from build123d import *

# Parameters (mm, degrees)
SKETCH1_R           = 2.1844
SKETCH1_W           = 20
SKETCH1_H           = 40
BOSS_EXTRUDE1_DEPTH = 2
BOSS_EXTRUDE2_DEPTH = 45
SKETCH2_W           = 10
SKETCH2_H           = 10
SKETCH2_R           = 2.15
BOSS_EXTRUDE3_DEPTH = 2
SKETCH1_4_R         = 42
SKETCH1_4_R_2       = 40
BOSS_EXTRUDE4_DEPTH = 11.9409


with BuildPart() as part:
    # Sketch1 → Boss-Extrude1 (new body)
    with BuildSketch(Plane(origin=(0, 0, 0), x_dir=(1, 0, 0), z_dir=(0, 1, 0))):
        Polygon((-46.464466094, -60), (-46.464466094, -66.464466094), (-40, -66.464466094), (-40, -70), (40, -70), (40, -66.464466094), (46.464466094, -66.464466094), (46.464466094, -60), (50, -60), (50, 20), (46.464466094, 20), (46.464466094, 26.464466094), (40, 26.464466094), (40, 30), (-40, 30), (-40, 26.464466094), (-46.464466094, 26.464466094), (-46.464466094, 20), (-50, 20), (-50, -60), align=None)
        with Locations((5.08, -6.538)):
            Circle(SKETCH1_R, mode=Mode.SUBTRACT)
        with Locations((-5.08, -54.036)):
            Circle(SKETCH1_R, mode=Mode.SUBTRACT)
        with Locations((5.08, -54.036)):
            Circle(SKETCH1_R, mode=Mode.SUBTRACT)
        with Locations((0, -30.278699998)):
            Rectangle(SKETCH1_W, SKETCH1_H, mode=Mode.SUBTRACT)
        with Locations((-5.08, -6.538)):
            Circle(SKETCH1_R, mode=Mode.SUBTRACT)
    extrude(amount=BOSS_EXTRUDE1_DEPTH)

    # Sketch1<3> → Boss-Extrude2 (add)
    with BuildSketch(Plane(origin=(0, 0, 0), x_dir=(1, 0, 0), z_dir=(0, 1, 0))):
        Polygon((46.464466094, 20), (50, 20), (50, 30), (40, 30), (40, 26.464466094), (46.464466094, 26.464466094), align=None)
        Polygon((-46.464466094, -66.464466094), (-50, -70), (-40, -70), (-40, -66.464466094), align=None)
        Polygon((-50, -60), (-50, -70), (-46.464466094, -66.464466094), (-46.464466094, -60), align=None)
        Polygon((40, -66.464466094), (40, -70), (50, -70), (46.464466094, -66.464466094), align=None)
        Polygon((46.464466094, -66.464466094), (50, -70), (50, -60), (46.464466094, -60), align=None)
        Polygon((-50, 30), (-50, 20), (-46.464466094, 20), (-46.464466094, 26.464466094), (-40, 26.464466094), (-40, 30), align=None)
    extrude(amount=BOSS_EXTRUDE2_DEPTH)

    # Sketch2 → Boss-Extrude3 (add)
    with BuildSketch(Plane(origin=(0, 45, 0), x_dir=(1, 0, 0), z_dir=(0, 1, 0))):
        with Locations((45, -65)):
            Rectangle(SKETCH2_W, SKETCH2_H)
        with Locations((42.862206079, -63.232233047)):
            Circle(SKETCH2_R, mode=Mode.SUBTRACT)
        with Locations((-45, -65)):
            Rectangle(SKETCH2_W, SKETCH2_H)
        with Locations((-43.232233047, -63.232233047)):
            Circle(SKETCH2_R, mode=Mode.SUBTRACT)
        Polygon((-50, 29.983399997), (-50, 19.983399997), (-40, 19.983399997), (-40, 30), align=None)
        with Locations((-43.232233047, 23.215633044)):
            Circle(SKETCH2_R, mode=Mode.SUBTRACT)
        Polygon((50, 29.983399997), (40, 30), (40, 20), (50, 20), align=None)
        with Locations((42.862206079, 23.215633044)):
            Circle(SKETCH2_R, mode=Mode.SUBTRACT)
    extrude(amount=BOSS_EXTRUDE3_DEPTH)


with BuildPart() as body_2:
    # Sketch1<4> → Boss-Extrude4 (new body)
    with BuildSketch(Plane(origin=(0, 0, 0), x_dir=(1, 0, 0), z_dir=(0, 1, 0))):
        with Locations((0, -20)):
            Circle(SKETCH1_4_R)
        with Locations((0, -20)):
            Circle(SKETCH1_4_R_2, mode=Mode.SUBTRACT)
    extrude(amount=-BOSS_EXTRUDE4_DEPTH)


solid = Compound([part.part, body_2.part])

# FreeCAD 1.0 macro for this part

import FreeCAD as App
import Part
import Sketcher

V = App.Vector

doc = App.newDocument("Part")
body = doc.addObject("PartDesign::Body", "Body")

sketch1 = body.newObject("Sketcher::SketchObject", "Sketch")
sketch1.AttachmentSupport = (doc.getObject("XZ_Plane"), [""])
sketch1.MapMode = "FlatFace"
sketch1.addGeometry([
    Part.LineSegment(V(-46.5, 60, 0), V(-46.5, 66.5, 0)),
    Part.LineSegment(V(-46.5, 66.5, 0), V(-40, 66.5, 0)),
    Part.LineSegment(V(-40, 66.5, 0), V(-40, 70, 0)),
    Part.LineSegment(V(-40, 70, 0), V(40, 70, 0)),
    Part.LineSegment(V(40, 70, 0), V(40, 66.5, 0)),
    Part.LineSegment(V(40, 66.5, 0), V(46.5, 66.5, 0)),
    Part.LineSegment(V(46.5, 66.5, 0), V(46.5, 60, 0)),
    Part.LineSegment(V(46.5, 60, 0), V(50, 60, 0)),
    Part.LineSegment(V(50, 60, 0), V(50, -20, 0)),
    Part.LineSegment(V(50, -20, 0), V(46.5, -20, 0)),
    Part.LineSegment(V(46.5, -20, 0), V(46.5, -26.5, 0)),
    Part.LineSegment(V(46.5, -26.5, 0), V(40, -26.5, 0)),
    Part.LineSegment(V(40, -26.5, 0), V(40, -30, 0)),
    Part.LineSegment(V(40, -30, 0), V(-40, -30, 0)),
    Part.LineSegment(V(-40, -30, 0), V(-40, -26.5, 0)),
    Part.LineSegment(V(-40, -26.5, 0), V(-46.5, -26.5, 0)),
    Part.LineSegment(V(-46.5, -26.5, 0), V(-46.5, -20, 0)),
    Part.LineSegment(V(-46.5, -20, 0), V(-50, -20, 0)),
    Part.LineSegment(V(-50, -20, 0), V(-50, 60, 0)),
    Part.LineSegment(V(-50, 60, 0), V(-46.5, 60, 0)),
    Part.Circle(V(-5.1, 54, 0), V(0, 0, 1), 2.2),
    Part.Circle(V(5.1, 54, 0), V(0, 0, 1), 2.2),
    Part.Circle(V(-5.1, 6.5, 0), V(0, 0, 1), 2.2),
    Part.LineSegment(V(10, 50.3, 0), V(-10, 50.3, 0)),
    Part.LineSegment(V(-10, 50.3, 0), V(-10, 10.3, 0)),
    Part.LineSegment(V(-10, 10.3, 0), V(10, 10.3, 0)),
    Part.LineSegment(V(10, 10.3, 0), V(10, 50.3, 0)),
    Part.Circle(V(5.1, 6.5, 0), V(0, 0, 1), 2.2),
], False)
sketch1.addConstraint([
    Sketcher.Constraint("Coincident", 0, 2, 1, 1),
    Sketcher.Constraint("Coincident", 1, 2, 2, 1),
    Sketcher.Constraint("Coincident", 2, 2, 3, 1),
    Sketcher.Constraint("Coincident", 3, 2, 4, 1),
    Sketcher.Constraint("Coincident", 4, 2, 5, 1),
    Sketcher.Constraint("Coincident", 5, 2, 6, 1),
    Sketcher.Constraint("Coincident", 6, 2, 7, 1),
    Sketcher.Constraint("Coincident", 7, 2, 8, 1),
    Sketcher.Constraint("Coincident", 8, 2, 9, 1),
    Sketcher.Constraint("Coincident", 9, 2, 10, 1),
    Sketcher.Constraint("Coincident", 10, 2, 11, 1),
    Sketcher.Constraint("Coincident", 11, 2, 12, 1),
    Sketcher.Constraint("Coincident", 12, 2, 13, 1),
    Sketcher.Constraint("Coincident", 13, 2, 14, 1),
    Sketcher.Constraint("Coincident", 14, 2, 15, 1),
    Sketcher.Constraint("Coincident", 15, 2, 16, 1),
    Sketcher.Constraint("Coincident", 16, 2, 17, 1),
    Sketcher.Constraint("Coincident", 17, 2, 18, 1),
    Sketcher.Constraint("Coincident", 18, 2, 19, 1),
    Sketcher.Constraint("Coincident", 19, 2, 0, 1),
    Sketcher.Constraint("Coincident", 23, 2, 24, 1),
    Sketcher.Constraint("Coincident", 24, 2, 25, 1),
    Sketcher.Constraint("Coincident", 25, 2, 26, 1),
    Sketcher.Constraint("Coincident", 26, 2, 23, 1),
    Sketcher.Constraint("Vertical", 0),
    Sketcher.Constraint("Horizontal", 1),
    Sketcher.Constraint("Vertical", 2),
    Sketcher.Constraint("Horizontal", 3),
    Sketcher.Constraint("Vertical", 4),
    Sketcher.Constraint("Horizontal", 5),
    Sketcher.Constraint("Vertical", 6),
    Sketcher.Constraint("Horizontal", 7),
    Sketcher.Constraint("Vertical", 8),
    Sketcher.Constraint("Horizontal", 9),
    Sketcher.Constraint("Vertical", 10),
    Sketcher.Constraint("Horizontal", 11),
    Sketcher.Constraint("Vertical", 12),
    Sketcher.Constraint("Horizontal", 13),
    Sketcher.Constraint("Vertical", 14),
    Sketcher.Constraint("Horizontal", 15),
    Sketcher.Constraint("Vertical", 16),
    Sketcher.Constraint("Horizontal", 17),
    Sketcher.Constraint("Vertical", 18),
    Sketcher.Constraint("Horizontal", 19),
    Sketcher.Constraint("Horizontal", 23),
    Sketcher.Constraint("Vertical", 24),
    Sketcher.Constraint("Horizontal", 25),
    Sketcher.Constraint("Vertical", 26),
    Sketcher.Constraint("Equal", 20, 21),
    Sketcher.Constraint("Equal", 21, 22),
    Sketcher.Constraint("Equal", 22, 27),
    Sketcher.Constraint("Symmetric", 20, 3, 21, 3, -2),
    Sketcher.Constraint("Symmetric", 22, 3, 27, 3, -2),
    Sketcher.Constraint("Symmetric", 1, 2, 4, 2, -2),
    Sketcher.Constraint("Symmetric", 11, 2, 14, 2, -2),
    Sketcher.Constraint("Symmetric", 9, 2, 16, 2, -2),
    Sketcher.Constraint("Symmetric", 7, 2, 18, 2, -2),
    Sketcher.Constraint("Vertical", 20, 3, 22, 3),
    Sketcher.Constraint("Vertical", 6, 2, 9, 2),
    Sketcher.Constraint("Vertical", 4, 2, 11, 2),
    Sketcher.Constraint("Vertical", 0, 2, 15, 2),
    Sketcher.Constraint("Equal", 15, 0),
    Sketcher.Constraint("Equal", 19, 2),
    Sketcher.Constraint("Equal", 13, 8),
    Sketcher.Constraint("Equal", 6, 10),
    Sketcher.Constraint("Equal", 4, 12),
    Sketcher.Constraint("DistanceX", 3, 1, 3, 2, 80.0),
    Sketcher.Constraint("DistanceX", 23, 2, 23, 1, 20.0),
    Sketcher.Constraint("DistanceY", 24, 2, 24, 1, 40.0),
    Sketcher.Constraint("DistanceY", -1, 1, 2, 2, 70.0),
    Sketcher.Constraint("DistanceY", -1, 1, 6, 2, 60.0),
    Sketcher.Constraint("DistanceX", 23, 2, -1, 1, 10.0),
    Sketcher.Constraint("Diameter", 20, 4.3688),
    Sketcher.Constraint("DistanceX", 20, 3, -1, 1, 5.08),
    Sketcher.Constraint("DistanceY", -1, 1, 20, 3, 54.036),
    Sketcher.Constraint("DistanceY", -1, 1, 22, 3, 6.538),
    Sketcher.Constraint("DistanceY", -1, 1, 23, 2, 50.2787),
    Sketcher.Constraint("DistanceX", 1, 1, 1, 2, 6.464466),
])
pad1 = body.newObject("PartDesign::Pad", "Pad")
pad1.Profile = sketch1
pad1.Length = 2
pad1.Reversed = True

sketch2 = body.newObject("Sketcher::SketchObject", "Sketch001")
sketch2.AttachmentSupport = (doc.getObject("XZ_Plane"), [""])
sketch2.MapMode = "FlatFace"
sketch2.addGeometry([
    Part.LineSegment(V(46.5, -20, 0), V(50, -20, 0)),
    Part.LineSegment(V(50, -20, 0), V(50, -30, 0)),
    Part.LineSegment(V(50, -30, 0), V(40, -30, 0)),
    Part.LineSegment(V(40, -30, 0), V(40, -26.5, 0)),
    Part.LineSegment(V(40, -26.5, 0), V(46.5, -26.5, 0)),
    Part.LineSegment(V(46.5, -26.5, 0), V(46.5, -20, 0)),
    Part.LineSegment(V(-50, 70, 0), V(-40, 70, 0)),
    Part.LineSegment(V(-40, 70, 0), V(-40, 66.5, 0)),
    Part.LineSegment(V(-40, 66.5, 0), V(-46.5, 66.5, 0)),
    Part.LineSegment(V(-46.5, 66.5, 0), V(-46.5, 60, 0)),
    Part.LineSegment(V(-46.5, 60, 0), V(-50, 60, 0)),
    Part.LineSegment(V(-50, 60, 0), V(-50, 70, 0)),
    Part.LineSegment(V(40, 66.5, 0), V(40, 70, 0)),
    Part.LineSegment(V(40, 70, 0), V(50, 70, 0)),
    Part.LineSegment(V(50, 70, 0), V(50, 60, 0)),
    Part.LineSegment(V(50, 60, 0), V(46.5, 60, 0)),
    Part.LineSegment(V(46.5, 60, 0), V(46.5, 66.5, 0)),
    Part.LineSegment(V(46.5, 66.5, 0), V(40, 66.5, 0)),
    Part.LineSegment(V(-50, -30, 0), V(-50, -20, 0)),
    Part.LineSegment(V(-50, -20, 0), V(-46.5, -20, 0)),
    Part.LineSegment(V(-46.5, -20, 0), V(-46.5, -26.5, 0)),
    Part.LineSegment(V(-46.5, -26.5, 0), V(-40, -26.5, 0)),
    Part.LineSegment(V(-40, -26.5, 0), V(-40, -30, 0)),
    Part.LineSegment(V(-40, -30, 0), V(-50, -30, 0)),
], False)
sketch2.addConstraint([
    Sketcher.Constraint("Coincident", 0, 2, 1, 1),
    Sketcher.Constraint("Coincident", 1, 2, 2, 1),
    Sketcher.Constraint("Coincident", 2, 2, 3, 1),
    Sketcher.Constraint("Coincident", 3, 2, 4, 1),
    Sketcher.Constraint("Coincident", 4, 2, 5, 1),
    Sketcher.Constraint("Coincident", 5, 2, 0, 1),
    Sketcher.Constraint("Coincident", 6, 2, 7, 1),
    Sketcher.Constraint("Coincident", 7, 2, 8, 1),
    Sketcher.Constraint("Coincident", 8, 2, 9, 1),
    Sketcher.Constraint("Coincident", 9, 2, 10, 1),
    Sketcher.Constraint("Coincident", 10, 2, 11, 1),
    Sketcher.Constraint("Coincident", 11, 2, 6, 1),
    Sketcher.Constraint("Coincident", 12, 2, 13, 1),
    Sketcher.Constraint("Coincident", 13, 2, 14, 1),
    Sketcher.Constraint("Coincident", 14, 2, 15, 1),
    Sketcher.Constraint("Coincident", 15, 2, 16, 1),
    Sketcher.Constraint("Coincident", 16, 2, 17, 1),
    Sketcher.Constraint("Coincident", 17, 2, 12, 1),
    Sketcher.Constraint("Coincident", 18, 2, 19, 1),
    Sketcher.Constraint("Coincident", 19, 2, 20, 1),
    Sketcher.Constraint("Coincident", 20, 2, 21, 1),
    Sketcher.Constraint("Coincident", 21, 2, 22, 1),
    Sketcher.Constraint("Coincident", 22, 2, 23, 1),
    Sketcher.Constraint("Coincident", 23, 2, 18, 1),
    Sketcher.Constraint("Horizontal", 0),
    Sketcher.Constraint("Vertical", 1),
    Sketcher.Constraint("Horizontal", 2),
    Sketcher.Constraint("Vertical", 3),
    Sketcher.Constraint("Horizontal", 4),
    Sketcher.Constraint("Vertical", 5),
    Sketcher.Constraint("Horizontal", 6),
    Sketcher.Constraint("Vertical", 7),
    Sketcher.Constraint("Horizontal", 8),
    Sketcher.Constraint("Vertical", 9),
    Sketcher.Constraint("Horizontal", 10),
    Sketcher.Constraint("Vertical", 11),
    Sketcher.Constraint("Vertical", 12),
    Sketcher.Constraint("Horizontal", 13),
    Sketcher.Constraint("Vertical", 14),
    Sketcher.Constraint("Horizontal", 15),
    Sketcher.Constraint("Vertical", 16),
    Sketcher.Constraint("Horizontal", 17),
    Sketcher.Constraint("Vertical", 18),
    Sketcher.Constraint("Horizontal", 19),
    Sketcher.Constraint("Vertical", 20),
    Sketcher.Constraint("Horizontal", 21),
    Sketcher.Constraint("Vertical", 22),
    Sketcher.Constraint("Horizontal", 23),
    Sketcher.Constraint("Symmetric", 6, 2, 12, 2, -2),
    Sketcher.Constraint("Symmetric", 10, 2, 14, 2, -2),
    Sketcher.Constraint("Symmetric", 8, 2, 16, 2, -2),
    Sketcher.Constraint("Symmetric", 0, 2, 18, 2, -2),
    Sketcher.Constraint("Symmetric", 4, 2, 20, 2, -2),
    Sketcher.Constraint("Symmetric", 2, 2, 22, 2, -2),
    Sketcher.Constraint("Vertical", 3, 2, 12, 2),
    Sketcher.Constraint("Vertical", 1, 2, 13, 2),
    Sketcher.Constraint("Vertical", 5, 2, 15, 2),
    Sketcher.Constraint("Equal", 23, 1),
    Sketcher.Constraint("Equal", 19, 3),
    Sketcher.Constraint("Equal", 3, 7),
    Sketcher.Constraint("Equal", 5, 9),
    Sketcher.Constraint("DistanceX", 2, 2, 2, 1, 10.0),
    Sketcher.Constraint("DistanceX", -1, 1, 0, 2, 50.0),
    Sketcher.Constraint("DistanceY", 0, 2, -1, 1, 20.0),
    Sketcher.Constraint("DistanceY", -1, 1, 6, 2, 70.0),
    Sketcher.Constraint("DistanceX", 0, 1, 0, 2, 3.535534),
])
pad2 = body.newObject("PartDesign::Pad", "Pad001")
pad2.Profile = sketch2
pad2.Length = 45
pad2.Reversed = True

sketch3 = body.newObject("Sketcher::SketchObject", "Sketch002")
sketch3.AttachmentSupport = (doc.getObject("XZ_Plane"), [""])
sketch3.MapMode = "FlatFace"
sketch3.AttachmentOffset = App.Placement(V(0, 0, -45), App.Rotation())
sketch3.addGeometry([
    Part.LineSegment(V(40, 60, 0), V(40, 70, 0)),
    Part.LineSegment(V(40, 70, 0), V(50, 70, 0)),
    Part.LineSegment(V(50, 70, 0), V(50, 60, 0)),
    Part.LineSegment(V(50, 60, 0), V(40, 60, 0)),
    Part.Circle(V(42.9, 63.2, 0), V(0, 0, 1), 2.1),
    Part.LineSegment(V(-50, 60, 0), V(-50, 70, 0)),
    Part.LineSegment(V(-50, 70, 0), V(-40, 70, 0)),
    Part.LineSegment(V(-40, 70, 0), V(-40, 60, 0)),
    Part.LineSegment(V(-40, 60, 0), V(-50, 60, 0)),
    Part.Circle(V(-43.2, 63.2, 0), V(0, 0, 1), 2.1),
    Part.LineSegment(V(-50, -30, 0), V(-50, -20, 0)),
    Part.LineSegment(V(-50, -20, 0), V(-40, -20, 0)),
    Part.LineSegment(V(-40, -20, 0), V(-40, -30, 0)),
    Part.LineSegment(V(-40, -30, 0), V(-50, -30, 0)),
    Part.Circle(V(-43.2, -23.2, 0), V(0, 0, 1), 2.1),
    Part.LineSegment(V(50, -30, 0), V(40, -30, 0)),
    Part.LineSegment(V(40, -30, 0), V(40, -20, 0)),
    Part.LineSegment(V(40, -20, 0), V(50, -20, 0)),
    Part.LineSegment(V(50, -20, 0), V(50, -30, 0)),
    Part.Circle(V(42.9, -23.2, 0), V(0, 0, 1), 2.1),
], False)
sketch3.addConstraint([
    Sketcher.Constraint("Coincident", 0, 2, 1, 1),
    Sketcher.Constraint("Coincident", 1, 2, 2, 1),
    Sketcher.Constraint("Coincident", 2, 2, 3, 1),
    Sketcher.Constraint("Coincident", 3, 2, 0, 1),
    Sketcher.Constraint("Coincident", 5, 2, 6, 1),
    Sketcher.Constraint("Coincident", 6, 2, 7, 1),
    Sketcher.Constraint("Coincident", 7, 2, 8, 1),
    Sketcher.Constraint("Coincident", 8, 2, 5, 1),
    Sketcher.Constraint("Coincident", 10, 2, 11, 1),
    Sketcher.Constraint("Coincident", 11, 2, 12, 1),
    Sketcher.Constraint("Coincident", 12, 2, 13, 1),
    Sketcher.Constraint("Coincident", 13, 2, 10, 1),
    Sketcher.Constraint("Coincident", 15, 2, 16, 1),
    Sketcher.Constraint("Coincident", 16, 2, 17, 1),
    Sketcher.Constraint("Coincident", 17, 2, 18, 1),
    Sketcher.Constraint("Coincident", 18, 2, 15, 1),
    Sketcher.Constraint("Vertical", 0),
    Sketcher.Constraint("Horizontal", 1),
    Sketcher.Constraint("Vertical", 2),
    Sketcher.Constraint("Horizontal", 3),
    Sketcher.Constraint("Vertical", 5),
    Sketcher.Constraint("Horizontal", 6),
    Sketcher.Constraint("Vertical", 7),
    Sketcher.Constraint("Horizontal", 8),
    Sketcher.Constraint("Vertical", 10),
    Sketcher.Constraint("Horizontal", 11),
    Sketcher.Constraint("Vertical", 12),
    Sketcher.Constraint("Vertical", 16),
    Sketcher.Constraint("Horizontal", 17),
    Sketcher.Constraint("Vertical", 18),
    Sketcher.Constraint("Equal", 4, 9),
    Sketcher.Constraint("Equal", 9, 14),
    Sketcher.Constraint("Equal", 14, 19),
    Sketcher.Constraint("Symmetric", 1, 2, 5, 2, -2),
    Sketcher.Constraint("Symmetric", 3, 2, 7, 2, -2),
    Sketcher.Constraint("Symmetric", 12, 2, 15, 2, -2),
    Sketcher.Constraint("Symmetric", 13, 2, 18, 2, -2),
    Sketcher.Constraint("Horizontal", 4, 3, 9, 3),
    Sketcher.Constraint("Horizontal", 14, 3, 19, 3),
    Sketcher.Constraint("Vertical", 9, 3, 14, 3),
    Sketcher.Constraint("Vertical", 4, 3, 19, 3),
    Sketcher.Constraint("Vertical", 8, 2, 10, 2),
    Sketcher.Constraint("Vertical", 7, 2, 11, 2),
    Sketcher.Constraint("Equal", 17, 0),
    Sketcher.Constraint("Equal", 7, 10),
    Sketcher.Constraint("Equal", 10, 16),
    Sketcher.Constraint("Diameter", 4, 4.3),
    Sketcher.Constraint("DistanceX", 1, 1, 1, 2, 10.0),
    Sketcher.Constraint("DistanceX", -1, 1, 0, 2, 40.0),
    Sketcher.Constraint("DistanceY", -1, 1, 0, 2, 70.0),
    Sketcher.Constraint("DistanceY", 12, 2, -1, 1, 30.0),
    Sketcher.Constraint("DistanceY", 12, 2, 12, 1, 10.0166),
    Sketcher.Constraint("DistanceX", 9, 3, 4, 3, 86.094439),
    Sketcher.Constraint("DistanceX", -1, 1, 4, 3, 42.862206),
    Sketcher.Constraint("DistanceY", -1, 1, 4, 3, 63.232233),
    Sketcher.Constraint("DistanceY", 14, 3, -1, 1, 23.215633),
])
pad3 = body.newObject("PartDesign::Pad", "Pad002")
pad3.Profile = sketch3
pad3.Length = 2
pad3.Reversed = True
body2 = doc.addObject("PartDesign::Body", "Body001")

sketch4 = body2.newObject("Sketcher::SketchObject", "Sketch003")
sketch4.AttachmentSupport = (doc.getObject("XZ_Plane001"), [""])
sketch4.MapMode = "FlatFace"
sketch4.addGeometry([
    Part.Circle(V(0, 20, 0), V(0, 0, 1), 42),
    Part.Circle(V(0, 20, 0), V(0, 0, 1), 40),
], False)
sketch4.addConstraint([
    Sketcher.Constraint("Coincident", 1, 3, 0, 3),
    Sketcher.Constraint("PointOnObject", 0, 3, -2),
    Sketcher.Constraint("Diameter", 0, 84.0),
    Sketcher.Constraint("Diameter", 1, 80.0),
    Sketcher.Constraint("DistanceY", -1, 1, 0, 3, 20.0),
])
pad4 = body2.newObject("PartDesign::Pad", "Pad003")
pad4.Profile = sketch4
pad4.Length = 11.9409

doc.recompute()
